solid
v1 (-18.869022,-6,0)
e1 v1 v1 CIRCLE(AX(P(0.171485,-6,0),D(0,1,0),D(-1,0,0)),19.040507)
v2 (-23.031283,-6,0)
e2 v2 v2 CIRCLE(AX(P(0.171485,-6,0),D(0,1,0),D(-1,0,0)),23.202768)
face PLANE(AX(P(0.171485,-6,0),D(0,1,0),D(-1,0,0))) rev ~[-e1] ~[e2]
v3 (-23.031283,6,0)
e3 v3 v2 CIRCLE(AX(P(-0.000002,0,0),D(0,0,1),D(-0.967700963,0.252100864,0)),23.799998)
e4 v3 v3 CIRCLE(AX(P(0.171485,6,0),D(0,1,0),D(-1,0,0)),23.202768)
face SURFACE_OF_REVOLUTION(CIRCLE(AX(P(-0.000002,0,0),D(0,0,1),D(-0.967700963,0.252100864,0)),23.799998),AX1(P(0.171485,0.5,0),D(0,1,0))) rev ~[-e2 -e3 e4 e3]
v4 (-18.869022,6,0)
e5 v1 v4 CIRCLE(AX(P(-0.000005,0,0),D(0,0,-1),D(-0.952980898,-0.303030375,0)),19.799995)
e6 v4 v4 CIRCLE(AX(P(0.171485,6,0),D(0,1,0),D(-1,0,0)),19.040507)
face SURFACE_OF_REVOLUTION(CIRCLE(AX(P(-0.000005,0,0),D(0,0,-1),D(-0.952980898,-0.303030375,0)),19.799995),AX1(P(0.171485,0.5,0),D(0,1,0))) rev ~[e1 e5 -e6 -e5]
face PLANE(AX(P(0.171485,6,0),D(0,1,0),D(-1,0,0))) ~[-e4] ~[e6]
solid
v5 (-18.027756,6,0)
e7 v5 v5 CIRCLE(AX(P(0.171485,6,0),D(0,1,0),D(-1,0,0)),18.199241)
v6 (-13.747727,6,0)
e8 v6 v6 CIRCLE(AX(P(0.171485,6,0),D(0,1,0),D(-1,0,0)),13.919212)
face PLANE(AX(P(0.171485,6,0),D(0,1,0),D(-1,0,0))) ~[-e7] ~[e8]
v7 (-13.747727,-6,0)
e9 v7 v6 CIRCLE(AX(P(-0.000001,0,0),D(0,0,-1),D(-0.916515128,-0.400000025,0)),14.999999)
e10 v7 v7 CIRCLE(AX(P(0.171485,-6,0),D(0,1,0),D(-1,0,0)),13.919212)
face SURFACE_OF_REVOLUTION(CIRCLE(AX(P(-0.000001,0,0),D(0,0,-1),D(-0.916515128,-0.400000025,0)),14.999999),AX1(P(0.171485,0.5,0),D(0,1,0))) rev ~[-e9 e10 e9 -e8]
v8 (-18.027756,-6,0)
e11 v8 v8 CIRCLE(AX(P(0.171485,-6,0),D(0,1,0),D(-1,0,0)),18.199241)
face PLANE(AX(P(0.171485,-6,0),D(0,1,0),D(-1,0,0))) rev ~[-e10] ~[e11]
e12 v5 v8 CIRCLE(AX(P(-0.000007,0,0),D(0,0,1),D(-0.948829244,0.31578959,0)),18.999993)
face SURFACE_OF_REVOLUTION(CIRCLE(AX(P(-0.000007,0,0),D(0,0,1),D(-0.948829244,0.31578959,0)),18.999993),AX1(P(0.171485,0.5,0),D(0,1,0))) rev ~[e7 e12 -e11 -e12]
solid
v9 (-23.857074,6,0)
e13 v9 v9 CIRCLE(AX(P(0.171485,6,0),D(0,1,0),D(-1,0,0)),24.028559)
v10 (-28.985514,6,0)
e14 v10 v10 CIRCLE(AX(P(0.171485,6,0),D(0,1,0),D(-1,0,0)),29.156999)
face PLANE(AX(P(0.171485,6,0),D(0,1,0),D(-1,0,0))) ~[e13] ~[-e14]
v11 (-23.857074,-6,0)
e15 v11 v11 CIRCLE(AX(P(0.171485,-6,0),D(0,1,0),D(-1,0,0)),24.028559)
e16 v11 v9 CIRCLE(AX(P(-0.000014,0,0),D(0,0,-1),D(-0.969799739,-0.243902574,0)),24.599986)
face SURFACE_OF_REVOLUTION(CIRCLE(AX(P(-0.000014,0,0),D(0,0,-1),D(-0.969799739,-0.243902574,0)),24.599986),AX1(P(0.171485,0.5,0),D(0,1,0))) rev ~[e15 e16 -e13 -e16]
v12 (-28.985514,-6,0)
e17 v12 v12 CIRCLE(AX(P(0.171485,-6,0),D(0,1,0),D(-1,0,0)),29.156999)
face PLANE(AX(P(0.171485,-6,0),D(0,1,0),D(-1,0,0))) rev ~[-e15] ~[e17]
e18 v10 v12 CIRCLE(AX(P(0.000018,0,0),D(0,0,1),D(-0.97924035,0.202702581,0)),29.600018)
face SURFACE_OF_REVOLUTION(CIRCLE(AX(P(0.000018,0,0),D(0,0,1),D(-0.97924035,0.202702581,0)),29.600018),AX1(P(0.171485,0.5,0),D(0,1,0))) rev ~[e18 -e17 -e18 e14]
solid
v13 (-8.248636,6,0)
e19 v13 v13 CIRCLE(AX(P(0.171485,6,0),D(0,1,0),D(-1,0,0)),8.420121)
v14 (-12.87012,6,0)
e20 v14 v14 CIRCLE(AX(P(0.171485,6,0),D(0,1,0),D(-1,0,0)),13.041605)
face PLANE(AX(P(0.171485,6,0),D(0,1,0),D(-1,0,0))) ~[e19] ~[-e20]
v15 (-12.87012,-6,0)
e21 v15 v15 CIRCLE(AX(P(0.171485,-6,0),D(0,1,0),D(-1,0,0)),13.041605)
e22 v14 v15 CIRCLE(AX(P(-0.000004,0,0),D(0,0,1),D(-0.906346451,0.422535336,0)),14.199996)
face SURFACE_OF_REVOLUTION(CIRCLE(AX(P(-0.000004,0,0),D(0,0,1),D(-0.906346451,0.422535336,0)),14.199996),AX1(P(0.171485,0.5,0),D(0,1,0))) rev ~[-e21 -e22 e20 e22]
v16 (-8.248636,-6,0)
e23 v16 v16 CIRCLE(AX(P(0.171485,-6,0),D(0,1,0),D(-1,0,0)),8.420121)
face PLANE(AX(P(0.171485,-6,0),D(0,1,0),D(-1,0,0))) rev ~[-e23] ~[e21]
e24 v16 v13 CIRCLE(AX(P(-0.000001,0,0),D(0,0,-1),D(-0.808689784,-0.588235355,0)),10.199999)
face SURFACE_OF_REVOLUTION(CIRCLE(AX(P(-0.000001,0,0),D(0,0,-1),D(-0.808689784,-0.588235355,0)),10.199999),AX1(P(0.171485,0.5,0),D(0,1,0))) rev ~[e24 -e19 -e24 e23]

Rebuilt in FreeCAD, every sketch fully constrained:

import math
import FreeCAD as App
import Part
import Sketcher

V = App.Vector

doc = App.newDocument("Part")
body = doc.addObject("PartDesign::Body", "Body")
body.AllowCompound = True

sketch1 = body.newObject("Sketcher::SketchObject", "Sketch")
sketch1.AttachmentSupport = (doc.getObject("XY_Plane"), [""])
sketch1.MapMode = "FlatFace"
sketch1.addGeometry(Part.ArcOfCircle(Part.Circle(V(-0.000014, 0, 0), V(0, 0, 1), 24.599986), math.radians(165.883011), math.radians(194.116989)), False)
sketch1.addGeometry(Part.LineSegment(V(-23.857074, 6, 0), V(-28.985514, 6, 0)), False)
sketch1.addGeometry(Part.ArcOfCircle(Part.Circle(V(0.000018, 0, 0), V(0, 0, 1), 29.600018), math.radians(168.304957), math.radians(191.695043)), False)
sketch1.addGeometry(Part.LineSegment(V(-28.985514, -6, 0), V(-23.857074, -6, 0)), False)
sketch1.addGeometry(Part.ArcOfCircle(Part.Circle(V(-0.000005, 0, 0), V(0, 0, 1), 19.799995), math.radians(162.360294), math.radians(197.639706)), False)
sketch1.addGeometry(Part.LineSegment(V(-18.869022, 6, 0), V(-23.031283, 6, 0)), False)
sketch1.addGeometry(Part.ArcOfCircle(Part.Circle(V(-0.000002, 0, 0), V(0, 0, 1), 23.799998), math.radians(165.398135), math.radians(194.601865)), False)
sketch1.addGeometry(Part.LineSegment(V(-23.031283, -6, 0), V(-18.869022, -6, 0)), False)
sketch1.addGeometry(Part.ArcOfCircle(Part.Circle(V(-0.000001, 0, 0), V(0, 0, 1), 14.999999), math.radians(156.42182), math.radians(203.57818)), False)
sketch1.addGeometry(Part.LineSegment(V(-13.747727, 6, 0), V(-18.027756, 6, 0)), False)
sketch1.addGeometry(Part.ArcOfCircle(Part.Circle(V(-0.000007, 0, 0), V(0, 0, 1), 18.999993), math.radians(161.591513), math.radians(198.408487)), False)
sketch1.addGeometry(Part.LineSegment(V(-18.027756, -6, 0), V(-13.747727, -6, 0)), False)
sketch1.addGeometry(Part.LineSegment(V(-8.248636, 6, 0), V(-12.87012, 6, 0)), False)
sketch1.addGeometry(Part.ArcOfCircle(Part.Circle(V(-0.000004, 0, 0), V(0, 0, 1), 14.199996), math.radians(155.005242), math.radians(204.994758)), False)
sketch1.addGeometry(Part.LineSegment(V(-12.87012, -6, 0), V(-8.248636, -6, 0)), False)
sketch1.addGeometry(Part.ArcOfCircle(Part.Circle(V(-0.000001, 0, 0), V(0, 0, 1), 10.199999), math.radians(143.968117), math.radians(216.031883)), False)
sketch1.addGeometry(Part.LineSegment(V(0.171485, -6, 0), V(0.171485, 6, 0)), True)
sketch1.addConstraint(Sketcher.Constraint("Coincident", 0, 1, 1, 1))
sketch1.addConstraint(Sketcher.Constraint("Coincident", 1, 2, 2, 1))
sketch1.addConstraint(Sketcher.Constraint("Coincident", 2, 2, 3, 1))
sketch1.addConstraint(Sketcher.Constraint("Coincident", 3, 2, 0, 2))
sketch1.addConstraint(Sketcher.Constraint("Coincident", 4, 1, 5, 1))
sketch1.addConstraint(Sketcher.Constraint("Coincident", 5, 2, 6, 1))
sketch1.addConstraint(Sketcher.Constraint("Coincident", 6, 2, 7, 1))
sketch1.addConstraint(Sketcher.Constraint("Coincident", 7, 2, 4, 2))
sketch1.addConstraint(Sketcher.Constraint("Coincident", 8, 1, 9, 1))
sketch1.addConstraint(Sketcher.Constraint("Coincident", 9, 2, 10, 1))
sketch1.addConstraint(Sketcher.Constraint("Coincident", 10, 2, 11, 1))
sketch1.addConstraint(Sketcher.Constraint("Coincident", 11, 2, 8, 2))
sketch1.addConstraint(Sketcher.Constraint("Coincident", 12, 2, 13, 1))
sketch1.addConstraint(Sketcher.Constraint("Coincident", 13, 2, 14, 1))
sketch1.addConstraint(Sketcher.Constraint("Coincident", 14, 2, 15, 2))
sketch1.addConstraint(Sketcher.Constraint("Coincident", 15, 1, 12, 1))
sketch1.addConstraint(Sketcher.Constraint("Horizontal", 1))
sketch1.addConstraint(Sketcher.Constraint("Horizontal", 3))
sketch1.addConstraint(Sketcher.Constraint("Horizontal", 5))
sketch1.addConstraint(Sketcher.Constraint("Horizontal", 7))
sketch1.addConstraint(Sketcher.Constraint("Horizontal", 9))
sketch1.addConstraint(Sketcher.Constraint("Horizontal", 11))
sketch1.addConstraint(Sketcher.Constraint("Horizontal", 12))
sketch1.addConstraint(Sketcher.Constraint("Horizontal", 14))
sketch1.addConstraint(Sketcher.Constraint("Vertical", 16))
sketch1.addConstraint(Sketcher.Constraint("Coincident", 4, 3, -1, 1))
sketch1.addConstraint(Sketcher.Constraint("Coincident", 6, 3, -1, 1))
sketch1.addConstraint(Sketcher.Constraint("Coincident", 8, 3, -1, 1))
sketch1.addConstraint(Sketcher.Constraint("Coincident", 10, 3, -1, 1))
sketch1.addConstraint(Sketcher.Constraint("Coincident", 13, 3, -1, 1))
sketch1.addConstraint(Sketcher.Constraint("Coincident", 15, 3, -1, 1))
sketch1.addConstraint(Sketcher.Constraint("Coincident", 4, 3, 0, 3))
sketch1.addConstraint(Sketcher.Constraint("PointOnObject", 2, 3, -1))
sketch1.addConstraint(Sketcher.Constraint("Radius", 8, 14.999999))
sketch1.addConstraint(Sketcher.Constraint("Radius", 15, 10.199999))
sketch1.addConstraint(Sketcher.Constraint("DistanceY", 16, 1, 16, 2, 12.0))
sketch1.addConstraint(Sketcher.Constraint("DistanceY", -1, 1, 0, 1, 6.0))
sketch1.addConstraint(Sketcher.Constraint("DistanceY", 2, 2, -1, 1, 6.0))
sketch1.addConstraint(Sketcher.Constraint("DistanceY", -1, 1, 4, 1, 6.0))
sketch1.addConstraint(Sketcher.Constraint("DistanceY", 6, 2, -1, 1, 6.0))
sketch1.addConstraint(Sketcher.Constraint("DistanceY", -1, 1, 8, 1, 6.0))
sketch1.addConstraint(Sketcher.Constraint("DistanceY", 10, 2, -1, 1, 6.0))
sketch1.addConstraint(Sketcher.Constraint("DistanceY", -1, 1, 12, 2, 6.0))
sketch1.addConstraint(Sketcher.Constraint("DistanceY", 13, 2, -1, 1, 6.0))
sketch1.addConstraint(Sketcher.Constraint("DistanceY", 16, 1, -1, 1, 6.0))
sketch1.addConstraint(Sketcher.Constraint("Radius", 0, 24.599986))
sketch1.addConstraint(Sketcher.Constraint("Radius", 2, 29.600018))
sketch1.addConstraint(Sketcher.Constraint("Radius", 4, 19.799995))
sketch1.addConstraint(Sketcher.Constraint("Radius", 6, 23.799998))
sketch1.addConstraint(Sketcher.Constraint("Radius", 10, 18.999993))
sketch1.addConstraint(Sketcher.Constraint("Radius", 13, 14.199996))
sketch1.addConstraint(Sketcher.Constraint("DistanceX", 1, 2, 1, 1, 5.12844))
sketch1.addConstraint(Sketcher.Constraint("DistanceX", 13, 3, 16, 1, 0.171489))
revolution = body.newObject("PartDesign::Revolution", "Revolution")
revolution.Profile = sketch1
revolution.ReferenceAxis = (sketch1, ["Axis0"])
revolution.Angle = 360

doc.recompute()
